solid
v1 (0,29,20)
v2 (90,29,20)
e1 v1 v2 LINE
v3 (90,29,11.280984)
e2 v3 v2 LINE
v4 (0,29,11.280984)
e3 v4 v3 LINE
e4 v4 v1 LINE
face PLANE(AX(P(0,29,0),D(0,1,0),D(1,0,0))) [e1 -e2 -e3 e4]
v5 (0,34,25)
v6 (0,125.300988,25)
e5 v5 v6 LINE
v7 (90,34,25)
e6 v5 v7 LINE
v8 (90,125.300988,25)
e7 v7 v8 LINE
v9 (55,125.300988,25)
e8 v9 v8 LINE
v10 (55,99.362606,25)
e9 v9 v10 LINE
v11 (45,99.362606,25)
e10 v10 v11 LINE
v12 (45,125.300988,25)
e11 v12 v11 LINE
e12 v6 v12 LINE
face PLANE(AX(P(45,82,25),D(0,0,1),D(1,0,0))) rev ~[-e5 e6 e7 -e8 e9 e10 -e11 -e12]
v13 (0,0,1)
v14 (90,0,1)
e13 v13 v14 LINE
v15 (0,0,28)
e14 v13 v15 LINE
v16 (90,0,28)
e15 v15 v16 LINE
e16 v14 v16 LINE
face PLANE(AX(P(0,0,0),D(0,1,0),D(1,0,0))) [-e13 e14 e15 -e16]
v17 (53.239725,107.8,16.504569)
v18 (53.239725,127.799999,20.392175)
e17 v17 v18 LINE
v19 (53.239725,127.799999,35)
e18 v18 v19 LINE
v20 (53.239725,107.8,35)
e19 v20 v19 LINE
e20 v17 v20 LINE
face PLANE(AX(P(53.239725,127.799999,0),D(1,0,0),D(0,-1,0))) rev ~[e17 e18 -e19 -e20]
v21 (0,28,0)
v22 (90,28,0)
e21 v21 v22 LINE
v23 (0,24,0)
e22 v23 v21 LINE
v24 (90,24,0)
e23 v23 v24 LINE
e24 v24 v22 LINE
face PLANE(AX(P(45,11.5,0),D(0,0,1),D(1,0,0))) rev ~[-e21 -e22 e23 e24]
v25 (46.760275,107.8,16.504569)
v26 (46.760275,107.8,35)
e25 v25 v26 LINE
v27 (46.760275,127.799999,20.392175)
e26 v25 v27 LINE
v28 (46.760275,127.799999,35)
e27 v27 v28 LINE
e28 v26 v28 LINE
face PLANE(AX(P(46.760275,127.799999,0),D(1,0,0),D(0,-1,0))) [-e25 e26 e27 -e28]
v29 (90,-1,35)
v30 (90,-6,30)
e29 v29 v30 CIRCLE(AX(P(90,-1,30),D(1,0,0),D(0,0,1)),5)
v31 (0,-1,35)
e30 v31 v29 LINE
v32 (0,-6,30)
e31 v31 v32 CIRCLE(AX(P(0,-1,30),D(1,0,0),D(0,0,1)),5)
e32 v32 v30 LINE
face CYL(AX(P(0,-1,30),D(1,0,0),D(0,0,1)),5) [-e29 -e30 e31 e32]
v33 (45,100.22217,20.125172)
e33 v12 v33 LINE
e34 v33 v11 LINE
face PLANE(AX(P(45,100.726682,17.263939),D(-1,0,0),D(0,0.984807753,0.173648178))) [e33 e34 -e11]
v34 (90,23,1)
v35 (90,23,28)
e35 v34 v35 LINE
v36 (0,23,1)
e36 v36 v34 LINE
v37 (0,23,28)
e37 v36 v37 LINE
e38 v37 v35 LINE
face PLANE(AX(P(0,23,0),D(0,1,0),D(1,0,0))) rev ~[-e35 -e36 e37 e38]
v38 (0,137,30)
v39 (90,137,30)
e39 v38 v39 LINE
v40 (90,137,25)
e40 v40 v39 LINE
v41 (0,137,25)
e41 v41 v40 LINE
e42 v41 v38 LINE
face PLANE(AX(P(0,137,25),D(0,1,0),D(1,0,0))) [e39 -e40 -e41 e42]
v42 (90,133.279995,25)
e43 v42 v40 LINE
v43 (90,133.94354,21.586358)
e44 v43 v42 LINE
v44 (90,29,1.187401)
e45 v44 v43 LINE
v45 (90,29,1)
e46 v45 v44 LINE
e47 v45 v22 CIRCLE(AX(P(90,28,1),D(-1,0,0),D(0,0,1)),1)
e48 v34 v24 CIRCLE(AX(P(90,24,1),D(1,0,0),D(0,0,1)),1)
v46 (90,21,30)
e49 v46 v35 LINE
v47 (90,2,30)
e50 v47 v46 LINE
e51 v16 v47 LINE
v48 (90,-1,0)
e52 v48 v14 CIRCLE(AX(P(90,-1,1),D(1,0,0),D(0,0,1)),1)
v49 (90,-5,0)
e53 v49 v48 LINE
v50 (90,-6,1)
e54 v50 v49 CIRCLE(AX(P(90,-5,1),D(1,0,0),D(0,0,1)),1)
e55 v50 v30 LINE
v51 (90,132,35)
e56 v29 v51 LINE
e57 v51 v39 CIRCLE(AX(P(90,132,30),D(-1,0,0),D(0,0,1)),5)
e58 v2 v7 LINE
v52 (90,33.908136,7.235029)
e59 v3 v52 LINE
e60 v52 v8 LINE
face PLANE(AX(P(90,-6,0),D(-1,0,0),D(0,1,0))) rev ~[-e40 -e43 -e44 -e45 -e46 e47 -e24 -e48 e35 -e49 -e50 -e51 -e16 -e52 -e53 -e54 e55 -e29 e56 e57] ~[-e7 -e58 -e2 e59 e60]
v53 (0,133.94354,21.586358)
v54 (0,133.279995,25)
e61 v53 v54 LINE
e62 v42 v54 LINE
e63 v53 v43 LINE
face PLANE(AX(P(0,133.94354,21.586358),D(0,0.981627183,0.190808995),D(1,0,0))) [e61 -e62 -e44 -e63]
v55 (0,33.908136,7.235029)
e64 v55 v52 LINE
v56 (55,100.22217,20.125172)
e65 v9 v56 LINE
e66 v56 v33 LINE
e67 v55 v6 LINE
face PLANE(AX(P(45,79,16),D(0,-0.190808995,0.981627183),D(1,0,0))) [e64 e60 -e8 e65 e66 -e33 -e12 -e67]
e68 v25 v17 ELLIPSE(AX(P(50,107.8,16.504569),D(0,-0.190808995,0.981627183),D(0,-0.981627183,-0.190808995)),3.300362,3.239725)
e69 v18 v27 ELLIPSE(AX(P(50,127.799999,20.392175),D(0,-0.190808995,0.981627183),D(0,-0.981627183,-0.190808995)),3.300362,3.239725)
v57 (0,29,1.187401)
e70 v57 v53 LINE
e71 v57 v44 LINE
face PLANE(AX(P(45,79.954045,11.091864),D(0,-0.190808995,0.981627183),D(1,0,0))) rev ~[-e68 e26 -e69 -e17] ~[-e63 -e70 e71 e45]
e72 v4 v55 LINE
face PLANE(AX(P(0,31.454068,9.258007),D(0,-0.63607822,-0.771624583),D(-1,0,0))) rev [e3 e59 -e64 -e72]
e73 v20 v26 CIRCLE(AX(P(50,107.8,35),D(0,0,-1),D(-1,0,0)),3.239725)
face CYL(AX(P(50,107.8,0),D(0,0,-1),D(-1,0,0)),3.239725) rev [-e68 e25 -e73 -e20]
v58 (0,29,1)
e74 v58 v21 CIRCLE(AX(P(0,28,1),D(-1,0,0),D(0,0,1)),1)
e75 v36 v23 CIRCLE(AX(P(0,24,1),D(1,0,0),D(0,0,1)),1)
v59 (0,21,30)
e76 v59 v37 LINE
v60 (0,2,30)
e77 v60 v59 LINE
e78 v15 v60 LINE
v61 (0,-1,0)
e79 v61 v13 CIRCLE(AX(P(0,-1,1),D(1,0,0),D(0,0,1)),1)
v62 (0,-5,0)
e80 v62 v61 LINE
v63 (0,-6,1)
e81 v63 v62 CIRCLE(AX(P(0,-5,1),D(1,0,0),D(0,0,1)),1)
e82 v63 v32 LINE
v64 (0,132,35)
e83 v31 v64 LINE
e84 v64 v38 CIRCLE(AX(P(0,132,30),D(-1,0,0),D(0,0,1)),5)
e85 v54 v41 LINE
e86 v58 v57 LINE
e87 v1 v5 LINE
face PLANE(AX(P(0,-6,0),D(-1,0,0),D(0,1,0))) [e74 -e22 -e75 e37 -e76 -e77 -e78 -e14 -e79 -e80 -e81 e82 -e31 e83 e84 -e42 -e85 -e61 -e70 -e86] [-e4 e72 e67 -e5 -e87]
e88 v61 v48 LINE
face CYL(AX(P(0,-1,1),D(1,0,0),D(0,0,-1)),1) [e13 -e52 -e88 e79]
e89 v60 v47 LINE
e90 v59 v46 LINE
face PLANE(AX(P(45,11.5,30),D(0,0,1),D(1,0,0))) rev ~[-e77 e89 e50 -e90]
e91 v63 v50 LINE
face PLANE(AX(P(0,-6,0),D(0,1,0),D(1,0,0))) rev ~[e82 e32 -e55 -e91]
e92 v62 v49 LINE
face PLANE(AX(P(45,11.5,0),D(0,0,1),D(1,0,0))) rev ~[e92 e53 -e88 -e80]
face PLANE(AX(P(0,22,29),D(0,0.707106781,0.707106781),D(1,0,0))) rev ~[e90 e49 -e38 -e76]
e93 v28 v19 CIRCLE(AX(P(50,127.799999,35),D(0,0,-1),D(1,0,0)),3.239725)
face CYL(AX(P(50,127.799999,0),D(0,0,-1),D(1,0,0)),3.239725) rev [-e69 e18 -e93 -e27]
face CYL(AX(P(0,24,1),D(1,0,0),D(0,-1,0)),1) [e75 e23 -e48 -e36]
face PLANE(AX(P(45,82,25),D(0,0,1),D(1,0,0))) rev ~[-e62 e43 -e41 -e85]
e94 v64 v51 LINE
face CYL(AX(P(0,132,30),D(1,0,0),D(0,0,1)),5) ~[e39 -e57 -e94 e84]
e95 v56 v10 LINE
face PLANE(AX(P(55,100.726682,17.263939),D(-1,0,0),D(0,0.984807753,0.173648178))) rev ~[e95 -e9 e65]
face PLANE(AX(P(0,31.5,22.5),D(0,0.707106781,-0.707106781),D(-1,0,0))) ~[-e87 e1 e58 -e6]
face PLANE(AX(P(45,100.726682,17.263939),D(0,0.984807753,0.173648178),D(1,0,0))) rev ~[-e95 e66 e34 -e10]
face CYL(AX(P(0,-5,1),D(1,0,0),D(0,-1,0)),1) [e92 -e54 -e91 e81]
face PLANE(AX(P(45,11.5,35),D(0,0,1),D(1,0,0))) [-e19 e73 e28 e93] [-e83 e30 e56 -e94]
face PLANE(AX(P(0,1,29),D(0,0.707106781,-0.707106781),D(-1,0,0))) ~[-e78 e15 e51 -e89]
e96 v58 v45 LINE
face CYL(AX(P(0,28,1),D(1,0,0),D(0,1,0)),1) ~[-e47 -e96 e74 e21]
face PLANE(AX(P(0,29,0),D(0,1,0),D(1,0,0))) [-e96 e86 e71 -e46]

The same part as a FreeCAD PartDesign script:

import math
import FreeCAD as App
import Part
import Sketcher
from FreeCAD import Vector


def edges_at(feature, points):
    """Names of the edges that pass closest to the given points."""
    edges = feature.Shape.Edges
    near = lambda p: min(range(len(edges)), key=lambda i: edges[i].distToShape(Part.Vertex(*p))[0])
    return sorted({f"Edge{near(p) + 1}" for p in points})

doc = App.newDocument("Part")
body = doc.addObject("PartDesign::Body", "Body")

# Sketch on XY plane
sketch1 = body.newObject("Sketcher::SketchObject", "Sketch")
sketch1.AttachmentSupport = (doc.getObject("XY_Plane"), [""])
sketch1.MapMode = "FlatFace"
sketch1.addGeometry(Part.ArcOfCircle(Part.Circle(Vector(0, 4.8, 0), Vector(0, 0, 1), 3.2), math.radians(0), math.radians(180)), False)
sketch1.addGeometry(Part.LineSegment(Vector(-3.2, 4.8, 0), Vector(-3.2, -15.2, 0)), False)
sketch1.addGeometry(Part.ArcOfCircle(Part.Circle(Vector(0, -15.2, 0), Vector(0, 0, 1), 3.2), math.radians(180), math.radians(360)), False)
sketch1.addGeometry(Part.LineSegment(Vector(3.2, -15.2, 0), Vector(3.2, 4.8, 0)), False)
sketch1.addConstraint(Sketcher.Constraint("Tangent", 0, 2, 1, 1))
sketch1.addConstraint(Sketcher.Constraint("Tangent", 1, 2, 2, 1))
sketch1.addConstraint(Sketcher.Constraint("Tangent", 2, 2, 3, 1))
sketch1.addConstraint(Sketcher.Constraint("Tangent", 3, 2, 0, 1))
sketch1.addConstraint(Sketcher.Constraint("Vertical", 1))
sketch1.addConstraint(Sketcher.Constraint("Vertical", 3))
sketch1.addConstraint(Sketcher.Constraint("PointOnObject", 0, 3, -2))
sketch1.addConstraint(Sketcher.Constraint("DistanceY", 1, 2, 1, 1, 19.999999))
sketch1.addConstraint(Sketcher.Constraint("DistanceY", -1, 1, 0, 3, 4.799999))
sketch1.addConstraint(Sketcher.Constraint("Radius", 0, 3.239725))
pad1 = body.newObject("PartDesign::Pad", "Pad")
pad1.Profile = sketch1
pad1.Length = 40
body2 = doc.addObject("PartDesign::Body", "Body001")
doc.recompute()

body.Placement = App.Placement(Vector(50, 123, 0), App.Rotation(Vector(0, 0, 1), 0))
boolean = body2.newObject("PartDesign::Boolean", "Boolean")
boolean.Type = "Fuse"
boolean.addObjects([body])
body3 = doc.addObject("PartDesign::Body", "Body002")

# Sketch on XY plane
sketch2 = body3.newObject("Sketcher::SketchObject", "Sketch001")
sketch2.AttachmentSupport = (doc.getObject("XY_Plane002"), [""])
sketch2.MapMode = "FlatFace"
sketch2.addGeometry(Part.LineSegment(Vector(0, 33, 0), Vector(0, 0, 0)), False)
sketch2.addGeometry(Part.LineSegment(Vector(0, 0, 0), Vector(10, 0, 0)), False)
sketch2.addGeometry(Part.LineSegment(Vector(10, 0, 0), Vector(10, 33, 0)), False)
sketch2.addGeometry(Part.LineSegment(Vector(10, 33, 0), Vector(0, 33, 0)), False)
sketch2.addConstraint(Sketcher.Constraint("Coincident", 0, 2, 1, 1))
sketch2.addConstraint(Sketcher.Constraint("Coincident", 1, 2, 2, 1))
sketch2.addConstraint(Sketcher.Constraint("Coincident", 2, 2, 3, 1))
sketch2.addConstraint(Sketcher.Constraint("Coincident", 3, 2, 0, 1))
sketch2.addConstraint(Sketcher.Constraint("Vertical", 0))
sketch2.addConstraint(Sketcher.Constraint("Horizontal", 1))
sketch2.addConstraint(Sketcher.Constraint("Vertical", 2))
sketch2.addConstraint(Sketcher.Constraint("Horizontal", 3))
sketch2.addConstraint(Sketcher.Constraint("Coincident", 0, 2, -1, 1))
sketch2.addConstraint(Sketcher.Constraint("DistanceX", 1, 1, 1, 2, 10.0))
sketch2.addConstraint(Sketcher.Constraint("DistanceY", 0, 2, 0, 1, 33.0))
pad2 = body3.newObject("PartDesign::Pad", "Pad001")
pad2.Profile = sketch2
pad2.Length = 11
body4 = doc.addObject("PartDesign::Body", "Body003")
doc.recompute()

body3.Placement = App.Placement(Vector(0, 0, 0), App.Rotation(Vector(1, 0, 0), 10))
boolean2 = body4.newObject("PartDesign::Boolean", "Boolean001")
boolean2.Type = "Fuse"
boolean2.addObjects([body3])
body5 = doc.addObject("PartDesign::Body", "Body004")
doc.recompute()

body4.Placement = App.Placement(Vector(45, 100.726682, 17.263939), App.Rotation(Vector(0, 0, 1), 0))
boolean3 = body5.newObject("PartDesign::Boolean", "Boolean002")
boolean3.Type = "Fuse"
boolean3.addObjects([body4])
body6 = doc.addObject("PartDesign::Body", "Body005")

# Sketch on XY plane
sketch3 = body6.newObject("Sketcher::SketchObject", "Sketch002")
sketch3.AttachmentSupport = (doc.getObject("XY_Plane005"), [""])
sketch3.MapMode = "FlatFace"
sketch3.addGeometry(Part.LineSegment(Vector(0, 23, 0), Vector(0, 0, 0)), False)
sketch3.addGeometry(Part.LineSegment(Vector(0, 0, 0), Vector(90, 0, 0)), False)
sketch3.addGeometry(Part.LineSegment(Vector(90, 0, 0), Vector(90, 23, 0)), False)
sketch3.addGeometry(Part.LineSegment(Vector(90, 23, 0), Vector(0, 23, 0)), False)
sketch3.addConstraint(Sketcher.Constraint("Coincident", 0, 2, 1, 1))
sketch3.addConstraint(Sketcher.Constraint("Coincident", 1, 2, 2, 1))
sketch3.addConstraint(Sketcher.Constraint("Coincident", 2, 2, 3, 1))
sketch3.addConstraint(Sketcher.Constraint("Coincident", 3, 2, 0, 1))
sketch3.addConstraint(Sketcher.Constraint("Vertical", 0))
sketch3.addConstraint(Sketcher.Constraint("Horizontal", 1))
sketch3.addConstraint(Sketcher.Constraint("Vertical", 2))
sketch3.addConstraint(Sketcher.Constraint("Horizontal", 3))
sketch3.addConstraint(Sketcher.Constraint("Coincident", 0, 2, -1, 1))
sketch3.addConstraint(Sketcher.Constraint("DistanceX", 1, 1, 1, 2, 90.0))
sketch3.addConstraint(Sketcher.Constraint("DistanceY", 0, 2, 0, 1, 23.0))
pad3 = body6.newObject("PartDesign::Pad", "Pad002")
pad3.Profile = sketch3
pad3.Length = 30
body7 = doc.addObject("PartDesign::Body", "Body006")

# Sketch on XY plane
sketch4 = body7.newObject("Sketcher::SketchObject", "Sketch003")
sketch4.AttachmentSupport = (doc.getObject("XY_Plane006"), [""])
sketch4.MapMode = "FlatFace"
sketch4.AttachmentOffset = App.Placement(Vector(0, 0, 25), App.Rotation())
sketch4.addGeometry(Part.LineSegment(Vector(0, 137, 0), Vector(0, 27, 0)), False)
sketch4.addGeometry(Part.LineSegment(Vector(0, 27, 0), Vector(90, 27, 0)), False)
sketch4.addGeometry(Part.LineSegment(Vector(90, 27, 0), Vector(90, 137, 0)), False)
sketch4.addGeometry(Part.LineSegment(Vector(90, 137, 0), Vector(0, 137, 0)), False)
sketch4.addConstraint(Sketcher.Constraint("Coincident", 0, 2, 1, 1))
sketch4.addConstraint(Sketcher.Constraint("Coincident", 1, 2, 2, 1))
sketch4.addConstraint(Sketcher.Constraint("Coincident", 2, 2, 3, 1))
sketch4.addConstraint(Sketcher.Constraint("Coincident", 3, 2, 0, 1))
sketch4.addConstraint(Sketcher.Constraint("Vertical", 0))
sketch4.addConstraint(Sketcher.Constraint("Horizontal", 1))
sketch4.addConstraint(Sketcher.Constraint("Vertical", 2))
sketch4.addConstraint(Sketcher.Constraint("Horizontal", 3))
sketch4.addConstraint(Sketcher.Constraint("PointOnObject", 0, 2, -2))
sketch4.addConstraint(Sketcher.Constraint("DistanceX", 1, 1, 1, 2, 90.0))
sketch4.addConstraint(Sketcher.Constraint("DistanceY", 0, 2, 0, 1, 110.0))
sketch4.addConstraint(Sketcher.Constraint("DistanceY", -1, 1, 0, 2, 27.0))
pad4 = body7.newObject("PartDesign::Pad", "Pad003")
pad4.Profile = sketch4
pad4.Length = 10
body8 = doc.addObject("PartDesign::Body", "Body007")

# Sketch on XY plane
sketch5 = body8.newObject("Sketcher::SketchObject", "Sketch004")
sketch5.AttachmentSupport = (doc.getObject("XY_Plane007"), [""])
sketch5.MapMode = "FlatFace"
sketch5.addGeometry(Part.LineSegment(Vector(0, 110, 0), Vector(0, 0, 0)), False)
sketch5.addGeometry(Part.LineSegment(Vector(0, 0, 0), Vector(90, 0, 0)), False)
sketch5.addGeometry(Part.LineSegment(Vector(90, 0, 0), Vector(90, 110, 0)), False)
sketch5.addGeometry(Part.LineSegment(Vector(90, 110, 0), Vector(0, 110, 0)), False)
sketch5.addConstraint(Sketcher.Constraint("Coincident", 0, 2, 1, 1))
sketch5.addConstraint(Sketcher.Constraint("Coincident", 1, 2, 2, 1))
sketch5.addConstraint(Sketcher.Constraint("Coincident", 2, 2, 3, 1))
sketch5.addConstraint(Sketcher.Constraint("Coincident", 3, 2, 0, 1))
sketch5.addConstraint(Sketcher.Constraint("Vertical", 0))
sketch5.addConstraint(Sketcher.Constraint("Horizontal", 1))
sketch5.addConstraint(Sketcher.Constraint("Vertical", 2))
sketch5.addConstraint(Sketcher.Constraint("Horizontal", 3))
sketch5.addConstraint(Sketcher.Constraint("Coincident", 0, 2, -1, 1))
sketch5.addConstraint(Sketcher.Constraint("DistanceX", 1, 1, 1, 2, 90.0))
sketch5.addConstraint(Sketcher.Constraint("DistanceY", 0, 2, 0, 1, 110.0))
pad5 = body8.newObject("PartDesign::Pad", "Pad004")
pad5.Profile = sketch5
pad5.Length = 5
body9 = doc.addObject("PartDesign::Body", "Body008")
doc.recompute()

body8.Placement = App.Placement(Vector(0, 0, 0), App.Rotation(Vector(1, 0, 0), 11))
boolean4 = body9.newObject("PartDesign::Boolean", "Boolean003")
boolean4.Type = "Fuse"
boolean4.addObjects([body8])
body10 = doc.addObject("PartDesign::Body", "Body009")
doc.recompute()

body9.Placement = App.Placement(Vector(0, 25.96455, 0.597369), App.Rotation(Vector(0, 0, 1), 0))
boolean5 = body10.newObject("PartDesign::Boolean", "Boolean004")
boolean5.Type = "Fuse"
boolean5.addObjects([body9])
body11 = doc.addObject("PartDesign::Body", "Body010")

# Sketch on XY plane
sketch6 = body11.newObject("Sketcher::SketchObject", "Sketch005")
sketch6.AttachmentSupport = (doc.getObject("XY_Plane010"), [""])
sketch6.MapMode = "FlatFace"
sketch6.addGeometry(Part.LineSegment(Vector(0, 29, 0), Vector(0, -6, 0)), False)
sketch6.addGeometry(Part.LineSegment(Vector(0, -6, 0), Vector(90, -6, 0)), False)
sketch6.addGeometry(Part.LineSegment(Vector(90, -6, 0), Vector(90, 29, 0)), False)
sketch6.addGeometry(Part.LineSegment(Vector(90, 29, 0), Vector(0, 29, 0)), False)
sketch6.addConstraint(Sketcher.Constraint("Coincident", 0, 2, 1, 1))
sketch6.addConstraint(Sketcher.Constraint("Coincident", 1, 2, 2, 1))
sketch6.addConstraint(Sketcher.Constraint("Coincident", 2, 2, 3, 1))
sketch6.addConstraint(Sketcher.Constraint("Coincident", 3, 2, 0, 1))
sketch6.addConstraint(Sketcher.Constraint("Vertical", 0))
sketch6.addConstraint(Sketcher.Constraint("Horizontal", 1))
sketch6.addConstraint(Sketcher.Constraint("Vertical", 2))
sketch6.addConstraint(Sketcher.Constraint("Horizontal", 3))
sketch6.addConstraint(Sketcher.Constraint("PointOnObject", 0, 2, -2))
sketch6.addConstraint(Sketcher.Constraint("DistanceX", 1, 1, 1, 2, 90.0))
sketch6.addConstraint(Sketcher.Constraint("DistanceY", 0, 2, 0, 1, 35.0))
sketch6.addConstraint(Sketcher.Constraint("DistanceY", 0, 2, -1, 1, 6.0))
pad6 = body11.newObject("PartDesign::Pad", "Pad005")
pad6.Profile = sketch6
pad6.Length = 35
doc.recompute()

boolean6 = body11.newObject("PartDesign::Boolean", "Boolean005")
boolean6.Type = "Fuse"
boolean6.addObjects([body7])
doc.recompute()

boolean7 = body11.newObject("PartDesign::Boolean", "Boolean006")
boolean7.Type = "Fuse"
boolean7.addObjects([body10])
doc.recompute()

boolean8 = body11.newObject("PartDesign::Boolean", "Boolean007")
boolean8.Type = "Cut"
boolean8.addObjects([body6])
doc.recompute()

chamfer = body11.newObject("PartDesign::Chamfer", "Chamfer")
chamfer.Base = (boolean8, edges_at(boolean8, [(45, 29, 25), (45, 29, 6.281)]))
chamfer.Size = 5
doc.recompute()

fillet = body11.newObject("PartDesign::Fillet", "Fillet")
fillet.Base = (chamfer, edges_at(chamfer, [(45, -6, 35)]))
fillet.Radius = 5
doc.recompute()

fillet2 = body11.newObject("PartDesign::Fillet", "Fillet001")
fillet2.Base = (fillet, edges_at(fillet, [(45, 137, 35)]))
fillet2.Radius = 5
doc.recompute()

fillet3 = body11.newObject("PartDesign::Fillet", "Fillet002")
fillet3.Base = (fillet2, edges_at(fillet2, [
    (45, -6, 0),
    (45, 0, 0),
    (45, 29, 0),
    (45, 23, 0),
]))
fillet3.Radius = 1
doc.recompute()

chamfer2 = body11.newObject("PartDesign::Chamfer", "Chamfer001")
chamfer2.Base = (fillet3, edges_at(fillet3, [(45, 0, 30), (45, 23, 30)]))
chamfer2.Size = 2
doc.recompute()

boolean9 = body11.newObject("PartDesign::Boolean", "Boolean008")
boolean9.Type = "Fuse"
boolean9.addObjects([body5])
doc.recompute()

boolean10 = body11.newObject("PartDesign::Boolean", "Boolean009")
boolean10.Type = "Cut"
boolean10.addObjects([body2])

doc.recompute()
